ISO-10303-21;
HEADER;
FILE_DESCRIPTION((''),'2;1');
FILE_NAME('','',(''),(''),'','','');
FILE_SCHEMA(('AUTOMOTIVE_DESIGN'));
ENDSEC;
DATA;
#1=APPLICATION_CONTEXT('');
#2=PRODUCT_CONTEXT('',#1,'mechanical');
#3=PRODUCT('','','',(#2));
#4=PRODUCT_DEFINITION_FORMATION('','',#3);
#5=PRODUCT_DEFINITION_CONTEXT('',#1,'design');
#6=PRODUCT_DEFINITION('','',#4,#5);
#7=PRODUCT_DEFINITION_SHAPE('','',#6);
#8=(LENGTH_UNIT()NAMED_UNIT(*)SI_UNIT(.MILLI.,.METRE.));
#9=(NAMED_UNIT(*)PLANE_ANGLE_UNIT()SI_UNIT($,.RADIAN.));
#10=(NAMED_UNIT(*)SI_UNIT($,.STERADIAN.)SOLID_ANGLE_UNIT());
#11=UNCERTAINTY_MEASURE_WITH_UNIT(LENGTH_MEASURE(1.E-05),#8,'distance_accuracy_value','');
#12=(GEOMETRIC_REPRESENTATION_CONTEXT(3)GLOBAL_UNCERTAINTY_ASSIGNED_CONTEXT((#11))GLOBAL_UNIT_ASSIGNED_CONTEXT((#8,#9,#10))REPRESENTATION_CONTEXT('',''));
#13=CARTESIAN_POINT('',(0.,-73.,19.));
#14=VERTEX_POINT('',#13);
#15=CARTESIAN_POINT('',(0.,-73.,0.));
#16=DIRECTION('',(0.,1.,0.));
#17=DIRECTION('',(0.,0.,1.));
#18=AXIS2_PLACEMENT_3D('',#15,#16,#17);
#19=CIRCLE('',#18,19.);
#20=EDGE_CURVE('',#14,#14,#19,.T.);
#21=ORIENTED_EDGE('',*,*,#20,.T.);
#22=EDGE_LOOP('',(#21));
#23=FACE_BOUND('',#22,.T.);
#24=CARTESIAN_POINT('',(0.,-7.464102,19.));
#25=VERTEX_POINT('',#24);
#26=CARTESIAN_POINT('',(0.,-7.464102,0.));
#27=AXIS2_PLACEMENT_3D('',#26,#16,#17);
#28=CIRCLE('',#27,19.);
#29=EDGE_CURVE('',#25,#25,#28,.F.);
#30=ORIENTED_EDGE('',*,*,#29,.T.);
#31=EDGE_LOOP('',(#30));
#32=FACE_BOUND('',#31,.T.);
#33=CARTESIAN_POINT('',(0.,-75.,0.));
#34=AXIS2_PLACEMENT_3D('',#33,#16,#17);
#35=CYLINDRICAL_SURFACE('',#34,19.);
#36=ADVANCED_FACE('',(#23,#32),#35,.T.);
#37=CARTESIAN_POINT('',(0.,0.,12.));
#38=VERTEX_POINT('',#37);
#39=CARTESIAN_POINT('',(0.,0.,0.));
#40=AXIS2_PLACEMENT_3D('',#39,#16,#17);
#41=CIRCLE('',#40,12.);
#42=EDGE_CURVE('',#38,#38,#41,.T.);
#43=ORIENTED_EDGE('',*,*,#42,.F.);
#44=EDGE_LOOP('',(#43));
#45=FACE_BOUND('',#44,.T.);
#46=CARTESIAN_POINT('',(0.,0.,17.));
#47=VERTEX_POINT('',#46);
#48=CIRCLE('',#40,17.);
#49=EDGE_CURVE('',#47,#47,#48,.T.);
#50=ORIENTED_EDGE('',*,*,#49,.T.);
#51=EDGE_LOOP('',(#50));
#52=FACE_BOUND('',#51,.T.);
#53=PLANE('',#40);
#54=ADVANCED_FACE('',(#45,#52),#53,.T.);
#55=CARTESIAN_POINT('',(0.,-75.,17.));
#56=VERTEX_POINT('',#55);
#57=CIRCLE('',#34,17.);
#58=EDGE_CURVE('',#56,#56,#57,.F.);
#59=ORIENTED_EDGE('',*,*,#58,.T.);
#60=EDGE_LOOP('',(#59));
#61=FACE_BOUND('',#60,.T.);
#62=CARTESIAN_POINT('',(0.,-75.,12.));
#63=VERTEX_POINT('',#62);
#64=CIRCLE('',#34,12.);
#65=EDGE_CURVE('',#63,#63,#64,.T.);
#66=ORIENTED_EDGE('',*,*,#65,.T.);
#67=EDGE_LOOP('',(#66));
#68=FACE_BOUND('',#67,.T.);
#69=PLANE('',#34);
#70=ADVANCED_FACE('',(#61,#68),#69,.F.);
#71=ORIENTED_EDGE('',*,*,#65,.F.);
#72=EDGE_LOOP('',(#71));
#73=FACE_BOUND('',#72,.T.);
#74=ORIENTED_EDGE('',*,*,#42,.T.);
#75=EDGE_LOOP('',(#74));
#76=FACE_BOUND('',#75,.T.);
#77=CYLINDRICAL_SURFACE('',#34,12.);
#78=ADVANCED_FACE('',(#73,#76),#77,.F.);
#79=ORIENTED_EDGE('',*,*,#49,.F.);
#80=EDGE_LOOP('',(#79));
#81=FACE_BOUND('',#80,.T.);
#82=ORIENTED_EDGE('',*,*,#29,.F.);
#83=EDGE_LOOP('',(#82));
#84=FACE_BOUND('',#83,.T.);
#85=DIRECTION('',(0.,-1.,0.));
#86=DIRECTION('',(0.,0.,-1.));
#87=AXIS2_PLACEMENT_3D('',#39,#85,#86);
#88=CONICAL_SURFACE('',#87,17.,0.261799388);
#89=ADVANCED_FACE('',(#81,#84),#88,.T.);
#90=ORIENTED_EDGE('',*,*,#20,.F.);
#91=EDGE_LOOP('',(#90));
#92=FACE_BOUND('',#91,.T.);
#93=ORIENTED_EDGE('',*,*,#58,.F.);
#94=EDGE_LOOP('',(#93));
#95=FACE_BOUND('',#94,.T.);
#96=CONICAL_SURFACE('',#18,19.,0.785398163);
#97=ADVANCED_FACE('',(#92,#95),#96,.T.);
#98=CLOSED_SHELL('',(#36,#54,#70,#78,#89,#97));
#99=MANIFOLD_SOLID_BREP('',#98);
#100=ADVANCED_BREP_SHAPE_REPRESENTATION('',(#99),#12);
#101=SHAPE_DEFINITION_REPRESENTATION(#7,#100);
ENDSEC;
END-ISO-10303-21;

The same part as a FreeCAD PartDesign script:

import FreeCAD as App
import Part
import Sketcher

V = App.Vector
Q = App.Units.Quantity


def edges_at(feature, points):
    """Names of the edges that pass closest to the given points."""
    edges = feature.Shape.Edges
    near = lambda p: min(range(len(edges)), key=lambda i: edges[i].distToShape(Part.Vertex(*p))[0])
    return sorted({f"Edge{near(p) + 1}" for p in points})

doc = App.newDocument("Part")
body = doc.addObject("PartDesign::Body", "Body")

sketch1 = body.newObject("Sketcher::SketchObject", "Sketch")
sketch1.AttachmentSupport = (doc.getObject("XZ_Plane"), [""])
sketch1.MapMode = "FlatFace"
sketch1.addGeometry([
    Part.Circle(V(0, 0, 0), V(0, 0, 1), 19),
    Part.Circle(V(0, 0, 0), V(0, 0, 1), 12),
], False)
sketch1.addConstraint([
    Sketcher.Constraint("Coincident", 0, 3, -1, 1),
    Sketcher.Constraint("Coincident", 1, 3, -1, 1),
    Sketcher.Constraint("Diameter", 0, Q("38 mm")),
    Sketcher.Constraint("Diameter", 1, Q("24 mm")),
])
pad1 = body.newObject("PartDesign::Pad", "Pad")
pad1.Profile = sketch1
pad1.Length = 75
doc.recompute()

chamfer = body.newObject("PartDesign::Chamfer", "Chamfer")
chamfer.Base = (pad1, edges_at(pad1, [(0, 0, -19)]))
chamfer.ChamferType = "Two distances"
chamfer.Size = 2
chamfer.Size2 = 7.464102
chamfer.FlipDirection = True
doc.recompute()

chamfer2 = body.newObject("PartDesign::Chamfer", "Chamfer001")
chamfer2.Base = (chamfer, edges_at(chamfer, [(0, -75, -19)]))
chamfer2.Size = 2

doc.recompute()
